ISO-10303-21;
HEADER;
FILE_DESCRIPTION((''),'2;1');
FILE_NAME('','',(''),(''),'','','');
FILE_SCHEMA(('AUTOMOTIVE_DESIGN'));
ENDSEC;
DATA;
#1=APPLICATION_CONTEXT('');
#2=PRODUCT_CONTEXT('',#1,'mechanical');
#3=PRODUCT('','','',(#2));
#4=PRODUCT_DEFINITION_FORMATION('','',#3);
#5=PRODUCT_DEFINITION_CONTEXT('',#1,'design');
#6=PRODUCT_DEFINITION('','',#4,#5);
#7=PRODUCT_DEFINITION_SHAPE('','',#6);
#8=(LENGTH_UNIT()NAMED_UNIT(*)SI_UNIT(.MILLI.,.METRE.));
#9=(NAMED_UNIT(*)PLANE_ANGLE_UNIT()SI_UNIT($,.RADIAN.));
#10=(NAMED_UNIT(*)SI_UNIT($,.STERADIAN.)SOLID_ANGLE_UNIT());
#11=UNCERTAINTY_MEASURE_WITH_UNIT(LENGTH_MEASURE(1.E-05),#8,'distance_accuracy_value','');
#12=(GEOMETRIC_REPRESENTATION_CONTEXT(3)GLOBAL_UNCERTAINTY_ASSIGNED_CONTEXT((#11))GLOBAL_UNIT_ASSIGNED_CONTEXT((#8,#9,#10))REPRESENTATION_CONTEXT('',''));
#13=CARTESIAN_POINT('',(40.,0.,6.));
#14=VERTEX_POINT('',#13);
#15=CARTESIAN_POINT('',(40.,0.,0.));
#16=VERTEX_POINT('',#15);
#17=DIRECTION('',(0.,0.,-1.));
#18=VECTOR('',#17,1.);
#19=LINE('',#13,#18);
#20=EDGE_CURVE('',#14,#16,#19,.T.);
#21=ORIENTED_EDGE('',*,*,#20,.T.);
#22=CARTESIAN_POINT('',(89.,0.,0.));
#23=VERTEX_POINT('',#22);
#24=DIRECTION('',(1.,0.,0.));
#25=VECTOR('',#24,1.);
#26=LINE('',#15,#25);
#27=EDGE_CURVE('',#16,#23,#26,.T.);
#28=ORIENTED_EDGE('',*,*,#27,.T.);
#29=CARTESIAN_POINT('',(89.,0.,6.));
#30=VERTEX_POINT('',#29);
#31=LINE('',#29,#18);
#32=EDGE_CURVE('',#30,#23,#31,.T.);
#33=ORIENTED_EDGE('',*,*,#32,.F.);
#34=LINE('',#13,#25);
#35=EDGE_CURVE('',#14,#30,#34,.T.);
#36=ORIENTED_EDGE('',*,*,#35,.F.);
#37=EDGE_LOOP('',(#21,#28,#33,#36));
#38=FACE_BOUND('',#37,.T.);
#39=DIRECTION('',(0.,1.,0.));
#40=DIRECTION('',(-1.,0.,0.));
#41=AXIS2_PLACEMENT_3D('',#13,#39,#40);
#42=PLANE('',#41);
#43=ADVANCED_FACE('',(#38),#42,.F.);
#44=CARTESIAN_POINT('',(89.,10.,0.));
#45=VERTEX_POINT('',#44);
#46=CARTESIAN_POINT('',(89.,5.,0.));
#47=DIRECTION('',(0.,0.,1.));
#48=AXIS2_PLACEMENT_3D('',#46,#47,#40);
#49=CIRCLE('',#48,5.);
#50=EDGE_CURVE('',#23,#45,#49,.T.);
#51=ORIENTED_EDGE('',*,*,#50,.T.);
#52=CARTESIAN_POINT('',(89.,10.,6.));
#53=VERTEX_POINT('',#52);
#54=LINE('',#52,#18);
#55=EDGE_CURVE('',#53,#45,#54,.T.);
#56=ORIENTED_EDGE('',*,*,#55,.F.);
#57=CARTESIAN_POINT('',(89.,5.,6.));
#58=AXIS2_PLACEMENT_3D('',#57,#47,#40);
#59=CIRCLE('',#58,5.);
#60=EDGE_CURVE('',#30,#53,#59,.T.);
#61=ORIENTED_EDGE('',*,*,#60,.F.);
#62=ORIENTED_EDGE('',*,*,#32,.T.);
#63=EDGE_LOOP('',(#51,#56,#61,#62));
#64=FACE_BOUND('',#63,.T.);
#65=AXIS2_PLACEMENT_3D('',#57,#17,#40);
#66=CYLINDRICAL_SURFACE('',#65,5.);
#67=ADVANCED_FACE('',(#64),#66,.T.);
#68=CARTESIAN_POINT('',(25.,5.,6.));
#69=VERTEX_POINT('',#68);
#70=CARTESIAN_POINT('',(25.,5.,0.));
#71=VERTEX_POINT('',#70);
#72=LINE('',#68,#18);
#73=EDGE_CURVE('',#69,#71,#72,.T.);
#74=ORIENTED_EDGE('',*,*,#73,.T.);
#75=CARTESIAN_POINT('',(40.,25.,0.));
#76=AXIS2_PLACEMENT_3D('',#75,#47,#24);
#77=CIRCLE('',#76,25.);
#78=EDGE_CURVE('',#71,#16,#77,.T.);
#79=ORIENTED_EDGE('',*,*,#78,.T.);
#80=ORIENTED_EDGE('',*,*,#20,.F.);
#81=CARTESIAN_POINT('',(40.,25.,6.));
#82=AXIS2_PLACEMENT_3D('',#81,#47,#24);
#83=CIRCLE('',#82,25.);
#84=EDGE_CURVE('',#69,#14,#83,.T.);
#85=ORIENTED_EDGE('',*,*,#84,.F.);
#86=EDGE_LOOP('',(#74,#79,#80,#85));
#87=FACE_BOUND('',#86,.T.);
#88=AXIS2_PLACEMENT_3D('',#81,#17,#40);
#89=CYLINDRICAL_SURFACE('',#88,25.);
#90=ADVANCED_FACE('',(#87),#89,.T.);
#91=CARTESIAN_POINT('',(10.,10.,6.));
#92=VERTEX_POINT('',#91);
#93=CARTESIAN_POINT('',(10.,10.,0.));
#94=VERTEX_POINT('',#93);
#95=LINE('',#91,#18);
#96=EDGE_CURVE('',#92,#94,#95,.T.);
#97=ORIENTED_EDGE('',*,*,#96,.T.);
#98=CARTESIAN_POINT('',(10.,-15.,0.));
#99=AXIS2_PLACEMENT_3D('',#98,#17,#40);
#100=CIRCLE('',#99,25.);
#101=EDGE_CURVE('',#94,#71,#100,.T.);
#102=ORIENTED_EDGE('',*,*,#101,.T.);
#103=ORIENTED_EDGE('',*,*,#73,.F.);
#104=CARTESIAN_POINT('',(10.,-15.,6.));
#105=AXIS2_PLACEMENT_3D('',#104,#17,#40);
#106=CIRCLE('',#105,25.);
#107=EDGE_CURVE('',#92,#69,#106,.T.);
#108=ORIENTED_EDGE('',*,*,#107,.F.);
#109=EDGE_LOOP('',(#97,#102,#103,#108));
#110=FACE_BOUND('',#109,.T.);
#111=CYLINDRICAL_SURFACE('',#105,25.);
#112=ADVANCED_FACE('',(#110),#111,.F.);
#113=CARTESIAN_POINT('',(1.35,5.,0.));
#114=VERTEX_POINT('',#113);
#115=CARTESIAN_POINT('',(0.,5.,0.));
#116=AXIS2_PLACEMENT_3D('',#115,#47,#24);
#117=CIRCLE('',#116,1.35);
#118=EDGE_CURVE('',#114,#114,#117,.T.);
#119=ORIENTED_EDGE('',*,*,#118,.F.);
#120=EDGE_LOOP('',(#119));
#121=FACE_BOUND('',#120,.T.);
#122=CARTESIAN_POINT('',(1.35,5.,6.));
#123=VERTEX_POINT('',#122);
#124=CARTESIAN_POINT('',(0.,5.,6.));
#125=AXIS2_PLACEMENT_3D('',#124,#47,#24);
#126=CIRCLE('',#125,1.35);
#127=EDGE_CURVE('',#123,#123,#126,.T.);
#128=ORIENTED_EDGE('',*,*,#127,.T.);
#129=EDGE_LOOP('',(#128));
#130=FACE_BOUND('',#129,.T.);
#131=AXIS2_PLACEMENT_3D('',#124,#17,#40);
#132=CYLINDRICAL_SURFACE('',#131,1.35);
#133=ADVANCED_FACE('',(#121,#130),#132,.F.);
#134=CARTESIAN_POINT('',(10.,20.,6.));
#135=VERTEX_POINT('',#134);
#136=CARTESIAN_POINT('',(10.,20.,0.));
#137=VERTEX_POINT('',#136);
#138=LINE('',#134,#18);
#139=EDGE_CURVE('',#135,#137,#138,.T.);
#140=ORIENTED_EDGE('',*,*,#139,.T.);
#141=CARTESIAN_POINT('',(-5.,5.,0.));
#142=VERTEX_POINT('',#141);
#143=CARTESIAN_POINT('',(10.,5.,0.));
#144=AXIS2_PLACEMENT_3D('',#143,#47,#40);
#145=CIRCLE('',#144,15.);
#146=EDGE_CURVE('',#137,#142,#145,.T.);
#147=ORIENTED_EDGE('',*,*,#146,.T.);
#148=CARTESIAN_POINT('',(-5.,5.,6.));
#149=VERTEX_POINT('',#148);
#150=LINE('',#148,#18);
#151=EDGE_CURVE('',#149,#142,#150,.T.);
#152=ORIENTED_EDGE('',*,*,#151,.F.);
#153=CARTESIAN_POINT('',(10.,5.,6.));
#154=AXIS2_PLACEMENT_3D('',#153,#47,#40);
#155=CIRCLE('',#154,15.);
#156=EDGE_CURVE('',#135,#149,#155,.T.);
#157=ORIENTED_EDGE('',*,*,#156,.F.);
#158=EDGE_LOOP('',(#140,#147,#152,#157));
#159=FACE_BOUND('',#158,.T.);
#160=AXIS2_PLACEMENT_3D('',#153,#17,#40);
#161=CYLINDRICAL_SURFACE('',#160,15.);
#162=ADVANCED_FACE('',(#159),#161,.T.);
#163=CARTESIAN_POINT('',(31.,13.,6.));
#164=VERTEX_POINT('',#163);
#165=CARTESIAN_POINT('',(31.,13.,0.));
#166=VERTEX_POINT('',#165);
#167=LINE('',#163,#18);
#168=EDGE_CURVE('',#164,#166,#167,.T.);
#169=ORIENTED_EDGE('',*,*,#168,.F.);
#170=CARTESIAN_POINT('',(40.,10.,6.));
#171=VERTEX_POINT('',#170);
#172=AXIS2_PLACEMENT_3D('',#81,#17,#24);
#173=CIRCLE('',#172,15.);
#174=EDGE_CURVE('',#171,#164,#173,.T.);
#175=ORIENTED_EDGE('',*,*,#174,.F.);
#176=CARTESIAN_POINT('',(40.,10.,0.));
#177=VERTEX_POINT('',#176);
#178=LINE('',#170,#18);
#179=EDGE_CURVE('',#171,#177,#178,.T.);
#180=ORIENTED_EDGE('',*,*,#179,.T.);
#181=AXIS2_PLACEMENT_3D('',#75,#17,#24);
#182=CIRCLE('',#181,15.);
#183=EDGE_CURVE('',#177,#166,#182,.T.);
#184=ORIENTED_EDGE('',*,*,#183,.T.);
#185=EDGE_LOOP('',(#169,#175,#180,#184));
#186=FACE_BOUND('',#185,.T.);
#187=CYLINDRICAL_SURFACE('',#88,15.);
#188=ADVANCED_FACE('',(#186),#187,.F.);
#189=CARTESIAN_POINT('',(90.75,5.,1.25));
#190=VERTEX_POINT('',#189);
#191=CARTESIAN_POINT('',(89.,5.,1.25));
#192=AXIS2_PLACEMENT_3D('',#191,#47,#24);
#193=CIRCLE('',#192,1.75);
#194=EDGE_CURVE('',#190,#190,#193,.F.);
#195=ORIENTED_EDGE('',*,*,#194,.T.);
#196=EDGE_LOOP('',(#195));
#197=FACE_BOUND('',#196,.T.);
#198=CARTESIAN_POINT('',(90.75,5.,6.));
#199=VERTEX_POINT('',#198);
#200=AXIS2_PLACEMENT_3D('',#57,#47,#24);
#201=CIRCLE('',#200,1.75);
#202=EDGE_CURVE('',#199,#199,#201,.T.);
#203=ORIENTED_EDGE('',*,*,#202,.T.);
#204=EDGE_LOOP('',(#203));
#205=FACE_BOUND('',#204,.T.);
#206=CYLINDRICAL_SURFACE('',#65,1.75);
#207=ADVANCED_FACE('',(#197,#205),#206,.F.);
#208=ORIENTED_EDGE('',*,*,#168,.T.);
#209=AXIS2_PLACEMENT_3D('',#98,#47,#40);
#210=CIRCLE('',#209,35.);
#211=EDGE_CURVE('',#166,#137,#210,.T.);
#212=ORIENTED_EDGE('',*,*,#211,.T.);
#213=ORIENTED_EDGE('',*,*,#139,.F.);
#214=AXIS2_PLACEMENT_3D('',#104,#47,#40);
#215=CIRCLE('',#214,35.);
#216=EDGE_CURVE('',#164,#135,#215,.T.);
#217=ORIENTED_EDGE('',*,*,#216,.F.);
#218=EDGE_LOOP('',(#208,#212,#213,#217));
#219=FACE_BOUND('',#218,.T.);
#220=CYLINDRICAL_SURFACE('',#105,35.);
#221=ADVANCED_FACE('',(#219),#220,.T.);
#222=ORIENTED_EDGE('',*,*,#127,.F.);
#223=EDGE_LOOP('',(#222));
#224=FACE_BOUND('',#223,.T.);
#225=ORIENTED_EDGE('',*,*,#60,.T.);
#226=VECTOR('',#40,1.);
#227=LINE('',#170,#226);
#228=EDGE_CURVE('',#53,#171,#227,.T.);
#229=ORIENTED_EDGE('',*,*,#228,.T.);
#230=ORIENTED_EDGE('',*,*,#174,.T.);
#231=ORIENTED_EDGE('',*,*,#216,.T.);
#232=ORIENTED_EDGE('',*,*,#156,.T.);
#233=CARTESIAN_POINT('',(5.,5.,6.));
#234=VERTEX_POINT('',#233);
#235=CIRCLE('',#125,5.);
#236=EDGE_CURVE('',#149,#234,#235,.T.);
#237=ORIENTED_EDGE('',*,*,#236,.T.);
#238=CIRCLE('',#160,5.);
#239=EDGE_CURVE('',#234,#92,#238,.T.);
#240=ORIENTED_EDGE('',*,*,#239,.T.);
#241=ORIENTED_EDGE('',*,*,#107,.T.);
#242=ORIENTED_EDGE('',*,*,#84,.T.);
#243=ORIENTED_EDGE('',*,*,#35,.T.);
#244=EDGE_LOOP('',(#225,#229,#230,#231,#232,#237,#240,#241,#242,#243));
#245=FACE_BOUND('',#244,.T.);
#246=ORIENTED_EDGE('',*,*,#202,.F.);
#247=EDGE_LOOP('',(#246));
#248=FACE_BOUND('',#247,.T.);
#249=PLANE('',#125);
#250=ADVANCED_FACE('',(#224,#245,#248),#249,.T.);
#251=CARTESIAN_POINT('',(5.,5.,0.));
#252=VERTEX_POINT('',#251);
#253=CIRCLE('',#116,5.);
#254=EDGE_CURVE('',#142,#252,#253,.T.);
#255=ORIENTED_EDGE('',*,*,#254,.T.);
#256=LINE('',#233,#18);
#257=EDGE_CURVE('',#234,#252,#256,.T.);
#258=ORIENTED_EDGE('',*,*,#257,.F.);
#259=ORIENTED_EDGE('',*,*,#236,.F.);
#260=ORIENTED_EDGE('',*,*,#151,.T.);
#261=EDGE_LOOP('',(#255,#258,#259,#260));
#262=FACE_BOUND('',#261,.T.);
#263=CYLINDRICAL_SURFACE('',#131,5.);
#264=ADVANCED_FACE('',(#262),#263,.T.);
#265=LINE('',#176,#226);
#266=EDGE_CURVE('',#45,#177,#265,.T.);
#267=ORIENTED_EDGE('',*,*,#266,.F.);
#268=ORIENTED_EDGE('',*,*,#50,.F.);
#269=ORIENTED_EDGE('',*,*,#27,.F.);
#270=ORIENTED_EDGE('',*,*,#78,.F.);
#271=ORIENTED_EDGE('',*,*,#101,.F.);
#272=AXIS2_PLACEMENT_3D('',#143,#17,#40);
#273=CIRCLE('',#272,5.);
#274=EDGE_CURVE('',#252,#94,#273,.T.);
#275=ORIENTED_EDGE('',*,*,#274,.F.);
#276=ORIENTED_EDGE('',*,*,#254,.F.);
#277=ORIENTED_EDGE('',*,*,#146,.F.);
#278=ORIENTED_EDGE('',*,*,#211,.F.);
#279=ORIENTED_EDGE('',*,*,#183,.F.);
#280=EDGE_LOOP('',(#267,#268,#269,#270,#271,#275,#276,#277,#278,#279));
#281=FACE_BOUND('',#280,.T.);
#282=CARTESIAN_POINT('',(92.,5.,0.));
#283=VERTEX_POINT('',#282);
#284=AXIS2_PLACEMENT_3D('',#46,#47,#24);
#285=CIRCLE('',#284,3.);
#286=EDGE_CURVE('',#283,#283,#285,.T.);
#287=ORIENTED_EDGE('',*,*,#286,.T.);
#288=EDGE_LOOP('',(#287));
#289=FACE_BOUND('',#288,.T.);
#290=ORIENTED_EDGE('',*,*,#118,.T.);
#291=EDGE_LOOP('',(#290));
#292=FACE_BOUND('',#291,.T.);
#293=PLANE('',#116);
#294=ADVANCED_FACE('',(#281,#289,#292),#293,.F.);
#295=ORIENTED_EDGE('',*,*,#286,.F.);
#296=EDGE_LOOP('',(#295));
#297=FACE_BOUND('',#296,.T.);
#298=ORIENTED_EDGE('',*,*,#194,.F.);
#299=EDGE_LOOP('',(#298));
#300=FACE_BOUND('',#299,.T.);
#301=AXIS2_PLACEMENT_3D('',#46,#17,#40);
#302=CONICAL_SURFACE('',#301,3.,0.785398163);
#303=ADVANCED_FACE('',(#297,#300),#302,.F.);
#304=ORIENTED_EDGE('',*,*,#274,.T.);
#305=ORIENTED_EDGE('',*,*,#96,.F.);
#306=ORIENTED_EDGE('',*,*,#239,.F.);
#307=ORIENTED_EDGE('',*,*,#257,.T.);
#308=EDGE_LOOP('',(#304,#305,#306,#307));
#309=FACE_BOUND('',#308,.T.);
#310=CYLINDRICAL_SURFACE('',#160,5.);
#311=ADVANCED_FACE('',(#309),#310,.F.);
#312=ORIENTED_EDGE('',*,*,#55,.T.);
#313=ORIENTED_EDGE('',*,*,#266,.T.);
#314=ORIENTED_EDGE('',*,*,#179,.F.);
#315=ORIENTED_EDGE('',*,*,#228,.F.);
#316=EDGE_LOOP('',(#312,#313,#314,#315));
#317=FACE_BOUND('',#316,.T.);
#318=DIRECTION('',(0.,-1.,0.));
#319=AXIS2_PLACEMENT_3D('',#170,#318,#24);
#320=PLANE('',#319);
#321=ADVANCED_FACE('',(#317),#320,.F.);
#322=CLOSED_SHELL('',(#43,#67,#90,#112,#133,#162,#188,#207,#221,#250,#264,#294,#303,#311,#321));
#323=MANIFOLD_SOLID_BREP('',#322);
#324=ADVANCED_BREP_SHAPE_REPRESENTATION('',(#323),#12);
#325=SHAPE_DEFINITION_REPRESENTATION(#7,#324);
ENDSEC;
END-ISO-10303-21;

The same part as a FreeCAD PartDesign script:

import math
import FreeCAD as App
import Part
import Sketcher

V = App.Vector


def edges_at(feature, points):
    """Names of the edges that pass closest to the given points."""
    edges = feature.Shape.Edges
    near = lambda p: min(range(len(edges)), key=lambda i: edges[i].distToShape(Part.Vertex(*p))[0])
    return sorted({f"Edge{near(p) + 1}" for p in points})

doc = App.newDocument("Part")
body = doc.addObject("PartDesign::Body", "Body")

sketch1 = doc.addObject("Sketcher::SketchObject", "Sketch")
body.addObject(sketch1)
sketch1.AttachmentSupport = (doc.XY_Plane, [""])
sketch1.MapMode = "FlatFace"
sketch1.addGeometry([
    Part.LineSegment(V(89, 10, 0), V(40, 10, 0)),
    Part.ArcOfCircle(Part.Circle(V(40, 25, 0), V(0, 0, 1), 15), math.radians(-127), math.radians(-90)),
    Part.ArcOfCircle(Part.Circle(V(10, -15, 0), V(0, 0, 1), 35), math.radians(53), math.radians(90)),
    Part.ArcOfCircle(Part.Circle(V(10, 5, 0), V(0, 0, 1), 15), math.radians(90), math.radians(180)),
    Part.ArcOfCircle(Part.Circle(V(0, 5, 0), V(0, 0, 1), 5), math.radians(180), math.radians(270)),
    Part.ArcOfCircle(Part.Circle(V(0, 5, 0), V(0, 0, 1), 5), math.radians(-90), math.radians(0)),
    Part.ArcOfCircle(Part.Circle(V(10, 5, 0), V(0, 0, 1), 5), math.radians(90), math.radians(180)),
    Part.ArcOfCircle(Part.Circle(V(10, -15, 0), V(0, 0, 1), 25), math.radians(53), math.radians(90)),
    Part.ArcOfCircle(Part.Circle(V(40, 25, 0), V(0, 0, 1), 25), math.radians(-127), math.radians(-90)),
    Part.LineSegment(V(40, 0, 0), V(89, 0, 0)),
    Part.ArcOfCircle(Part.Circle(V(89, 5, 0), V(0, 0, 1), 5), math.radians(-90), math.radians(90)),
    Part.Circle(V(89, 5, 0), V(0, 0, 1), 1.8),
    Part.Circle(V(0, 5, 0), V(0, 0, 1), 1.4),
], False)
sketch1.addConstraint([
    Sketcher.Constraint("Tangent", 0, 2, 1, 2),
    Sketcher.Constraint("Tangent", 1, 1, 2, 1),
    Sketcher.Constraint("Tangent", 2, 2, 3, 1),
    Sketcher.Constraint("Tangent", 3, 2, 4, 1),
    Sketcher.Constraint("Tangent", 4, 2, 5, 1),
    Sketcher.Constraint("Tangent", 5, 2, 6, 2),
    Sketcher.Constraint("Tangent", 6, 1, 7, 2),
    Sketcher.Constraint("Tangent", 7, 1, 8, 1),
    Sketcher.Constraint("Tangent", 8, 2, 9, 1),
    Sketcher.Constraint("Tangent", 9, 2, 10, 1),
    Sketcher.Constraint("Tangent", 10, 2, 0, 1),
    Sketcher.Constraint("Horizontal", 0),
    Sketcher.Constraint("Horizontal", 9),
    Sketcher.Constraint("Coincident", 4, 2, -1, 1),
    Sketcher.Constraint("Coincident", 6, 3, 3, 3),
    Sketcher.Constraint("Coincident", 7, 3, 2, 3),
    Sketcher.Constraint("Coincident", 8, 3, 1, 3),
    Sketcher.Constraint("Coincident", 11, 3, 10, 3),
    Sketcher.Constraint("Coincident", 12, 3, 4, 3),
    Sketcher.Constraint("Equal", 1, 3),
    Sketcher.Constraint("Equal", 4, 5),
    Sketcher.Constraint("Equal", 5, 6),
    Sketcher.Constraint("Equal", 7, 8),
    Sketcher.Constraint("Symmetric", 3, 2, 5, 2, -2),
    Sketcher.Constraint("PointOnObject", 8, 2, -1),
    Sketcher.Constraint("Vertical", 2, 3, 3, 3),
    Sketcher.Constraint("Radius", 1, 15.0),
    Sketcher.Constraint("Diameter", 11, 3.5),
    Sketcher.Constraint("Diameter", 12, 2.7),
    Sketcher.Constraint("DistanceX", 0, 2, 0, 1, 49.0),
])
pad1 = doc.addObject("PartDesign::Pad", "Pad")
body.addObject(pad1)
pad1.Profile = sketch1
pad1.Length = 6
doc.recompute()

chamfer = doc.addObject("PartDesign::Chamfer", "Chamfer")
body.addObject(chamfer)
chamfer.Base = (pad1, edges_at(pad1, [(87.25, 5, 0)]))
chamfer.Size = 1.25

doc.recompute()
